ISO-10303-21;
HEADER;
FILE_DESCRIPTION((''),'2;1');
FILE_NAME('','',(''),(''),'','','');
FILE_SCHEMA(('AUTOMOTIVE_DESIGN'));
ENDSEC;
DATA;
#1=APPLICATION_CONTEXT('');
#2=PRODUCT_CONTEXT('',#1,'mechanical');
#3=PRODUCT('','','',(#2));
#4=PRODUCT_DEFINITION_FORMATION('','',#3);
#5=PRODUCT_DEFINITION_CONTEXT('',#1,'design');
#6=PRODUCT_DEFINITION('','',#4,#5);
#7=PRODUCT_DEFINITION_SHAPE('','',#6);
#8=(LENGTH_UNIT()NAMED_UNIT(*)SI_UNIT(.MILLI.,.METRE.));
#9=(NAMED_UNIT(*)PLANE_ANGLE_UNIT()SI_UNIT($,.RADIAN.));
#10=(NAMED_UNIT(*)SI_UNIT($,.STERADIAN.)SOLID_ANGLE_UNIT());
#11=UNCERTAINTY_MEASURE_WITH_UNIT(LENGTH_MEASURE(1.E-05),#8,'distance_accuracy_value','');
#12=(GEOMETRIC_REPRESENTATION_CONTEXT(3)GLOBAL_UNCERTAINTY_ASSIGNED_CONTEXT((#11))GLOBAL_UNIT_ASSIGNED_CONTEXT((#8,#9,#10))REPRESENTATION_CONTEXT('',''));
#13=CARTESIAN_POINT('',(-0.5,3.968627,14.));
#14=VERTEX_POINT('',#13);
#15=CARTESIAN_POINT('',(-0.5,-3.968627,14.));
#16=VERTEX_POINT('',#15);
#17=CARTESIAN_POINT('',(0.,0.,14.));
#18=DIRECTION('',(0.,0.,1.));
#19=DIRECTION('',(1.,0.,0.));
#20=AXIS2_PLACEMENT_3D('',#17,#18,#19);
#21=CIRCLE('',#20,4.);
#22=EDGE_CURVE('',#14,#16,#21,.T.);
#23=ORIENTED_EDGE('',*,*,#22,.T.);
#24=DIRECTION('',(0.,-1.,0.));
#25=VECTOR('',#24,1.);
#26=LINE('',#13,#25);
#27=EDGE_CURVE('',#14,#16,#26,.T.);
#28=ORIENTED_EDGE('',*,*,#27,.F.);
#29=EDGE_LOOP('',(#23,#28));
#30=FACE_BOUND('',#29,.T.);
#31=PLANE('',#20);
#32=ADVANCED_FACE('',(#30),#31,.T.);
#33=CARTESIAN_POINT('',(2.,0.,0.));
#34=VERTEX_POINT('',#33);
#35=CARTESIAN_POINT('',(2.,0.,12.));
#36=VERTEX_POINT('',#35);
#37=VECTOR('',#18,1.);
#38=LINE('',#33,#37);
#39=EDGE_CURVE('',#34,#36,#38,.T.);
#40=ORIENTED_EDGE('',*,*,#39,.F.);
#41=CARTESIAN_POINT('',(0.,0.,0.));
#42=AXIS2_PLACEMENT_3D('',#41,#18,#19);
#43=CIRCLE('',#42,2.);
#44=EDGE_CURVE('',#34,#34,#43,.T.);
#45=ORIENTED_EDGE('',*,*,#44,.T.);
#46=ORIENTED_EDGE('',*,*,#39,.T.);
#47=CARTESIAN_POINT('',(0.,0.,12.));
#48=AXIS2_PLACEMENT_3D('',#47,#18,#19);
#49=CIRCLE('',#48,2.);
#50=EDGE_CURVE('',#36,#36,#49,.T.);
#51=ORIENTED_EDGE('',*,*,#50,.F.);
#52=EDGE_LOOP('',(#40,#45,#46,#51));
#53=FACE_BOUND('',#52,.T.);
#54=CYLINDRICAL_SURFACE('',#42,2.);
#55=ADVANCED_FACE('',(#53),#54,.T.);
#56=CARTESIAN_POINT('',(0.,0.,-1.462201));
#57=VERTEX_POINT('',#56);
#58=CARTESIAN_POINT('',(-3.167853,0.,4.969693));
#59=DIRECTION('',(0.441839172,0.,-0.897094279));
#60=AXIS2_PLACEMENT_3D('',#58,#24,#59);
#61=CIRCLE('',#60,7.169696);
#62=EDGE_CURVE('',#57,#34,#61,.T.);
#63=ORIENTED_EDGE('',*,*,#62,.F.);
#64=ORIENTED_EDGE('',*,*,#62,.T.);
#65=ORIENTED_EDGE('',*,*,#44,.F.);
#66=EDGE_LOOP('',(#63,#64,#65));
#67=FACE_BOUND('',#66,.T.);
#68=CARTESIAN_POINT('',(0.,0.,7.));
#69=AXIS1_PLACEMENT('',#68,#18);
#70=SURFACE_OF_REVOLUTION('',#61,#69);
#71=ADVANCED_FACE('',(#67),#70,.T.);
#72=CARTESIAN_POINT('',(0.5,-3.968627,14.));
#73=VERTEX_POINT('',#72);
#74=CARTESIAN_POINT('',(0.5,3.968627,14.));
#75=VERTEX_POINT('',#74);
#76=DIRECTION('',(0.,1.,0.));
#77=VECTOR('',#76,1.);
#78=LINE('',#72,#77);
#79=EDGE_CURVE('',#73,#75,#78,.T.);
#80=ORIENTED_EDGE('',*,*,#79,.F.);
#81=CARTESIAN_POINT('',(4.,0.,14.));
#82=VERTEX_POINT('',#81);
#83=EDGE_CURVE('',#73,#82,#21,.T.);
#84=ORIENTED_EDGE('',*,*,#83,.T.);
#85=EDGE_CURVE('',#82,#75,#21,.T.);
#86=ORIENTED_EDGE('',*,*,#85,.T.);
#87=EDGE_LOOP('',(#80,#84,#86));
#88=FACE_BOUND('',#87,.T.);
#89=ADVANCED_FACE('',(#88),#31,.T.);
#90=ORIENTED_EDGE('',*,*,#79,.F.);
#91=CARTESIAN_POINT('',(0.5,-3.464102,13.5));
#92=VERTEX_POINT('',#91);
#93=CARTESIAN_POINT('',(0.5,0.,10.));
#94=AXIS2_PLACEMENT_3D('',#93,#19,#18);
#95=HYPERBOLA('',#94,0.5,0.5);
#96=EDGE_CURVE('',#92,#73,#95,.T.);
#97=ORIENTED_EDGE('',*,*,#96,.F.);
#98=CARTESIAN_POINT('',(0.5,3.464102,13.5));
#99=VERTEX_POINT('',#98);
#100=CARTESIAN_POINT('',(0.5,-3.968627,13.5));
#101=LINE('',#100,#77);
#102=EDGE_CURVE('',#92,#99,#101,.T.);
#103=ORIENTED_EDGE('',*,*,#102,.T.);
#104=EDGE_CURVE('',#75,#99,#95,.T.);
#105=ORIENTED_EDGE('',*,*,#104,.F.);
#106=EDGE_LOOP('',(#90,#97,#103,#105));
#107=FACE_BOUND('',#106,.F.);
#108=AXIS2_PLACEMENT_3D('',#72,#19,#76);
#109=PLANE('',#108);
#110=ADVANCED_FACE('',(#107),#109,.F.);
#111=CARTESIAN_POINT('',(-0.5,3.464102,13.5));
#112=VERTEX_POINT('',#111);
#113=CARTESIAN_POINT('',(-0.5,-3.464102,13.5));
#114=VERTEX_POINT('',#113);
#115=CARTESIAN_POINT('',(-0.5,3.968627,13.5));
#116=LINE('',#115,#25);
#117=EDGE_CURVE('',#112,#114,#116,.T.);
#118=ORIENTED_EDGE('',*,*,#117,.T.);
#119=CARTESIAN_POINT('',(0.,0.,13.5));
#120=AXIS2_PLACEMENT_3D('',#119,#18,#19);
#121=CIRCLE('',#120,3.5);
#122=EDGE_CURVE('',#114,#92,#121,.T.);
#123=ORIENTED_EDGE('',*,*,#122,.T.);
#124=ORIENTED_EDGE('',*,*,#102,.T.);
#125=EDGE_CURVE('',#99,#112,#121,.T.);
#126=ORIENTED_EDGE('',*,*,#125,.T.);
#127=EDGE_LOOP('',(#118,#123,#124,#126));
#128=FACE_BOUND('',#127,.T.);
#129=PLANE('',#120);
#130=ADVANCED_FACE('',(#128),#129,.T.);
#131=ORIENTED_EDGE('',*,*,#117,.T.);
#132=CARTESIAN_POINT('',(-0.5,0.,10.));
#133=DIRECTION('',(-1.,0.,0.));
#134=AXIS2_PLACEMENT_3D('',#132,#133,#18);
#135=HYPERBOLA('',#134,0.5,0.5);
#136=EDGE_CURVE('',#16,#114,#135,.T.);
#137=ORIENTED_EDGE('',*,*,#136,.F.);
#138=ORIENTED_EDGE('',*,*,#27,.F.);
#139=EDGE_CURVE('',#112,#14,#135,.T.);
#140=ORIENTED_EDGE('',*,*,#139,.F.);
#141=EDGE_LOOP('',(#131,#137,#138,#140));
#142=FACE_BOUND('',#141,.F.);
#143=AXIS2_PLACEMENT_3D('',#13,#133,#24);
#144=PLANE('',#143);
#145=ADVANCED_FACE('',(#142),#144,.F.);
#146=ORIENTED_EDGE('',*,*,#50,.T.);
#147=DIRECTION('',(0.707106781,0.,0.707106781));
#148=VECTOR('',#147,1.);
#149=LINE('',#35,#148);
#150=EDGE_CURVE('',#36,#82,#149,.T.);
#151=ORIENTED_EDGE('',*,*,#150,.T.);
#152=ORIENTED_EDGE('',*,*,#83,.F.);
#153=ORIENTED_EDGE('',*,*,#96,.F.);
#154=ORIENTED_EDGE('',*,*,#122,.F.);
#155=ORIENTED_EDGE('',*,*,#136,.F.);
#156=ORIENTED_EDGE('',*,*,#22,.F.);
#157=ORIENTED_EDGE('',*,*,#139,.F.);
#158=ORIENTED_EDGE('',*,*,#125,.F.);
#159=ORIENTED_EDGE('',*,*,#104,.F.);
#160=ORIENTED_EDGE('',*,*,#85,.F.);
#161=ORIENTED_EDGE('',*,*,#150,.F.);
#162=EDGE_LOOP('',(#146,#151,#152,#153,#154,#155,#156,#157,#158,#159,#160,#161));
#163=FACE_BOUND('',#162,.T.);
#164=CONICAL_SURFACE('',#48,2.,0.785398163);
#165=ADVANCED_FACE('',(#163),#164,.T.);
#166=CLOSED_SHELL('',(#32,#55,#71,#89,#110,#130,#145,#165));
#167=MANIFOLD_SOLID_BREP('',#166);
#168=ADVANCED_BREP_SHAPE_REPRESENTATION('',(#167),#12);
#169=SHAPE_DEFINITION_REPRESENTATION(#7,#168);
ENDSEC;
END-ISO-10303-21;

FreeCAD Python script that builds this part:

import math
import FreeCAD as App
import Part
import Sketcher
from FreeCAD import Vector
Q = App.Units.Quantity

doc = App.newDocument("Part")
params = doc.addObject("Spreadsheet::Sheet", "Params")
for row, (alias, value) in enumerate([
    ("sketch1_width", "4 mm"),
    ("sketch1_height", "12 mm"),
    ("revolution_angle", "360 deg"),
    ("pocket1_length", "0.5 mm"),
], start=1):
    params.set(f"A{row}", alias)
    params.set(f"B{row}", "=" + value)
    params.setAlias(f"B{row}", alias)

body = doc.addObject("PartDesign::Body", "Body")

sketch1 = doc.addObject("Sketcher::SketchObject", "Sketch")
body.addObject(sketch1)
sketch1.AttachmentSupport = (doc.XZ_Plane, [""])
sketch1.MapMode = "FlatFace"
sketch1.addGeometry([
    Part.LineSegment(Vector(0, 14, 0), Vector(0, -1.462201, 0)),
    Part.ArcOfCircle(Part.Circle(Vector(-3.167853, 4.969693, 0), Vector(0, 0, 1), 7.169696), math.radians(-63.778713), math.radians(-43.880174)),
    Part.LineSegment(Vector(2, 0, 0), Vector(2, 12, 0)),
    Part.LineSegment(Vector(2, 12, 0), Vector(4, 14, 0)),
    Part.LineSegment(Vector(4, 14, 0), Vector(0, 14, 0)),
], False)
sketch1.addConstraint([
    Sketcher.Constraint("Coincident", 0, 2, 1, 1),
    Sketcher.Constraint("Coincident", 1, 2, 2, 1),
    Sketcher.Constraint("Coincident", 2, 2, 3, 1),
    Sketcher.Constraint("Coincident", 3, 2, 4, 1),
    Sketcher.Constraint("Coincident", 4, 2, 0, 1),
    Sketcher.Constraint("Vertical", 0),
    Sketcher.Constraint("Vertical", 2),
    Sketcher.Constraint("Horizontal", 4),
    Sketcher.Constraint("PointOnObject", 0, 2, -2),
    Sketcher.Constraint("PointOnObject", 1, 2, -1),
    Sketcher.Constraint("DistanceX", 4, 2, 4, 1, 4.0),
    Sketcher.Constraint("DistanceY", 2, 1, 2, 2, 12.0),
    Sketcher.Constraint("Angle", 3, Q("45 deg")),
    Sketcher.Constraint("DistanceX", -1, 1, 1, 2, 2.0),
    Sketcher.Constraint("DistanceY", 0, 2, 0, 1, 15.462201),
    Sketcher.Constraint("Radius", 1, 7.169696),
])
sketch1.setExpression("Constraints[10]", "Params.sketch1_width")
sketch1.setExpression("Constraints[11]", "Params.sketch1_height")
revolution = doc.addObject("PartDesign::Revolution", "Revolution")
body.addObject(revolution)
revolution.Profile = sketch1
revolution.ReferenceAxis = (sketch1, ["V_Axis"])
revolution.setExpression("Angle", "Params.revolution_angle")

sketch2 = doc.addObject("Sketcher::SketchObject", "Sketch001")
body.addObject(sketch2)
sketch2.AttachmentSupport = (doc.XY_Plane, [""])
sketch2.MapMode = "FlatFace"
sketch2.AttachmentOffset = App.Placement(Vector(0, 0, 14), App.Rotation())
sketch2.addGeometry([
    Part.LineSegment(Vector(-0.5, 3.968627, 0), Vector(-0.5, -3.968627, 0)),
    Part.ArcOfCircle(Part.Circle(Vector(0, 0.000004, 0), Vector(0, 0, 1), 4.000004), math.radians(-97.180748), math.radians(-82.819252)),
    Part.LineSegment(Vector(0.5, -3.968627, 0), Vector(0.5, 3.968627, 0)),
    Part.ArcOfCircle(Part.Circle(Vector(0, -0.000004, 0), Vector(0, 0, 1), 4.000004), math.radians(82.819252), math.radians(97.180748)),
], False)
sketch2.addConstraint([
    Sketcher.Constraint("Coincident", 0, 2, 1, 1),
    Sketcher.Constraint("Coincident", 1, 2, 2, 1),
    Sketcher.Constraint("Coincident", 2, 2, 3, 1),
    Sketcher.Constraint("Coincident", 3, 2, 0, 1),
    Sketcher.Constraint("Vertical", 0),
    Sketcher.Constraint("Vertical", 2),
    Sketcher.Constraint("Coincident", 1, 3, -1, 1),
    Sketcher.Constraint("Coincident", 3, 3, -1, 1),
    Sketcher.Constraint("Equal", 1, 3),
    Sketcher.Constraint("Horizontal", 0, 2, 1, 2),
    Sketcher.Constraint("DistanceX", 0, 2, 1, 2, 1.0),
    Sketcher.Constraint("Radius", 1, 4.000004),
])
pocket1 = doc.addObject("PartDesign::Pocket", "Pocket")
body.addObject(pocket1)
pocket1.Profile = sketch2
pocket1.setExpression("Length", "Params.pocket1_length")

doc.recompute()
